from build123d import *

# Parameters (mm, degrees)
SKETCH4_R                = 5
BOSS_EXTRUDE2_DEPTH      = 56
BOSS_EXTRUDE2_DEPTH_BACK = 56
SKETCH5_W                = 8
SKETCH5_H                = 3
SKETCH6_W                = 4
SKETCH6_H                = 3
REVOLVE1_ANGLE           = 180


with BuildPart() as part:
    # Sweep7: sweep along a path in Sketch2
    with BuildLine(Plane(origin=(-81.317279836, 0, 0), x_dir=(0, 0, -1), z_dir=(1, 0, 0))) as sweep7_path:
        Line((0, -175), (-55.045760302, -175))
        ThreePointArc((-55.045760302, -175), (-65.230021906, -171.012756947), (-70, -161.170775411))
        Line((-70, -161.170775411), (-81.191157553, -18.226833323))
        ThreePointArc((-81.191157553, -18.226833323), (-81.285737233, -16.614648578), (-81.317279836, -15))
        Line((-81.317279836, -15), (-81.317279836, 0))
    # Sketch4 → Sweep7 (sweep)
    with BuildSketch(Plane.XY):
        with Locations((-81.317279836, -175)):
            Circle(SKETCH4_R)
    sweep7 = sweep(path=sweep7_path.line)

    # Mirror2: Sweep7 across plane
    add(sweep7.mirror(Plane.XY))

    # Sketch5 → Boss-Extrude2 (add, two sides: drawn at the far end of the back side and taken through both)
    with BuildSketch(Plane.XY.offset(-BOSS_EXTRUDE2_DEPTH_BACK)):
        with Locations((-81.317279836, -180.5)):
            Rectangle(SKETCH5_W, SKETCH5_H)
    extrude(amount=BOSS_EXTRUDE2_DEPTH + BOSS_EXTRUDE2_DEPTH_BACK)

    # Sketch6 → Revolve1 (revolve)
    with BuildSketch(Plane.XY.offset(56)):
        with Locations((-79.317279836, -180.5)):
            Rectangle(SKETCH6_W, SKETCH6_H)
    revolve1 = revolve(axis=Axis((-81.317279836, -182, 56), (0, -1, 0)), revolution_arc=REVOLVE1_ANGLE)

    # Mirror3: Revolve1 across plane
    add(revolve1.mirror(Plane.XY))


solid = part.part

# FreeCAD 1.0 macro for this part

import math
import FreeCAD as App
import Part
import Sketcher

V = App.Vector

doc = App.newDocument("Part")
params = doc.addObject("Spreadsheet::Sheet", "Params")
for row, (alias, value) in enumerate([
    ("sketch1_diameter", "10 mm"),
    ("sketch2_radius", "15 mm"),
    ("sketch2_width", "15 mm"),
    ("sketch3_width", "8 mm"),
    ("sketch3_height", "3 mm"),
    ("pad1_length", "56 mm"),
    ("pad1_length2", "56 mm"),
    ("sketch4_width", "4 mm"),
    ("sketch4_height", "3 mm"),
    ("revolution_angle", "180 deg"),
], start=1):
    params.set(f"A{row}", alias)
    params.set(f"B{row}", "=" + value)
    params.setAlias(f"B{row}", alias)

body = doc.addObject("PartDesign::Body", "Body")

sketch1 = doc.addObject("Sketcher::SketchObject", "Sketch")
body.addObject(sketch1)
sketch1.AttachmentSupport = (doc.XY_Plane, [""])
sketch1.MapMode = "FlatFace"
sketch1.addGeometry(Part.Circle(V(-81, -175, 0), V(0, 0, 1), 5), False)
sketch1.addConstraint(Sketcher.Constraint("Diameter", 0, 10.0))
sketch1.addConstraint(Sketcher.Constraint("DistanceY", 0, 3, -1, 1, 175.0))
sketch1.addConstraint(Sketcher.Constraint("DistanceX", 0, 3, -1, 1, 81.31728))
sketch1.setExpression("Constraints[0]", "Params.sketch1_diameter")

sketch2 = doc.addObject("Sketcher::SketchObject", "Sketch001")
body.addObject(sketch2)
sketch2.AttachmentSupport = (doc.YZ_Plane, [""])
sketch2.MapMode = "FlatFace"
sketch2.AttachmentOffset = App.Placement(V(0, 0, -81.31728), App.Rotation())
sketch2.addGeometry(Part.LineSegment(V(-175, 0, 0), V(-175, 55.04576, 0)), False)
sketch2.addGeometry(Part.ArcOfCircle(Part.Circle(V(-160, 55.04576, 0), V(0, 0, 1), 15), math.radians(94.476586), math.radians(180)), False)
sketch2.addGeometry(Part.LineSegment(V(-161.170775, 70, 0), V(-18.226833, 81.191158, 0)), False)
sketch2.addGeometry(Part.ArcOfCircle(Part.Circle(V(-15, 39.975022, 0), V(0, 0, 1), 41.342258), math.radians(90), math.radians(94.476586)), False)
sketch2.addGeometry(Part.LineSegment(V(-15, 81.31728, 0), V(0, 81.31728, 0)), False)
sketch2.addConstraint(Sketcher.Constraint("Coincident", 0, 2, 1, 2))
sketch2.addConstraint(Sketcher.Constraint("Coincident", 1, 1, 2, 1))
sketch2.addConstraint(Sketcher.Constraint("Coincident", 2, 2, 3, 2))
sketch2.addConstraint(Sketcher.Constraint("Coincident", 3, 1, 4, 1))
sketch2.addConstraint(Sketcher.Constraint("Vertical", 0))
sketch2.addConstraint(Sketcher.Constraint("Horizontal", 4))
sketch2.addConstraint(Sketcher.Constraint("PointOnObject", 0, 1, -1))
sketch2.addConstraint(Sketcher.Constraint("PointOnObject", 4, 2, -2))
sketch2.addConstraint(Sketcher.Constraint("Radius", 1, 15.0))
sketch2.addConstraint(Sketcher.Constraint("DistanceX", 4, 1, 4, 2, 15.0))
sketch2.addConstraint(Sketcher.Constraint("DistanceX", 1, 3, -1, 1, 160.0))
sketch2.addConstraint(Sketcher.Constraint("DistanceX", 3, 3, -1, 1, 15.0))
sketch2.addConstraint(Sketcher.Constraint("DistanceY", -1, 1, 1, 1, 70.0))
sketch2.addConstraint(Sketcher.Constraint("Radius", 3, 41.342258))
sketch2.addConstraint(Sketcher.Constraint("DistanceY", 0, 1, 0, 2, 55.04576))
sketch2.addConstraint(Sketcher.Constraint("DistanceY", -1, 1, 1, 3, 55.04576))
sketch2.addConstraint(Sketcher.Constraint("DistanceY", -1, 1, 3, 3, 39.975022))
sketch2.addConstraint(Sketcher.Constraint("Distance", 2, 143.381354))
sketch2.setExpression("Constraints[8]", "Params.sketch2_radius")
sketch2.setExpression("Constraints[9]", "Params.sketch2_width")
doc.recompute()

additivepipe = doc.addObject("PartDesign::AdditivePipe", "AdditivePipe")
body.addObject(additivepipe)
additivepipe.Profile = sketch1
additivepipe.Spine = (sketch2, ["Edge1", "Edge2", "Edge3", "Edge4", "Edge5"])
doc.recompute()

mirrored = doc.addObject("PartDesign::Mirrored", "Mirrored")
body.addObject(mirrored)
mirrored.Originals = [additivepipe]
mirrored.MirrorPlane = (doc.XY_Plane, [""])
body.Tip = mirrored

sketch3 = doc.addObject("Sketcher::SketchObject", "Sketch002")
body.addObject(sketch3)
sketch3.AttachmentSupport = (doc.XY_Plane, [""])
sketch3.MapMode = "FlatFace"
sketch3.addGeometry(Part.LineSegment(V(-85.3, -179, 0), V(-85.3, -182, 0)), False)
sketch3.addGeometry(Part.LineSegment(V(-85.3, -182, 0), V(-77.3, -182, 0)), False)
sketch3.addGeometry(Part.LineSegment(V(-77.3, -182, 0), V(-77.3, -179, 0)), False)
sketch3.addGeometry(Part.LineSegment(V(-77.3, -179, 0), V(-85.3, -179, 0)), False)
sketch3.addConstraint(Sketcher.Constraint("Coincident", 0, 2, 1, 1))
sketch3.addConstraint(Sketcher.Constraint("Coincident", 1, 2, 2, 1))
sketch3.addConstraint(Sketcher.Constraint("Coincident", 2, 2, 3, 1))
sketch3.addConstraint(Sketcher.Constraint("Coincident", 3, 2, 0, 1))
sketch3.addConstraint(Sketcher.Constraint("Vertical", 0))
sketch3.addConstraint(Sketcher.Constraint("Horizontal", 1))
sketch3.addConstraint(Sketcher.Constraint("Vertical", 2))
sketch3.addConstraint(Sketcher.Constraint("Horizontal", 3))
sketch3.addConstraint(Sketcher.Constraint("DistanceX", 1, 1, 1, 2, 8.0))
sketch3.addConstraint(Sketcher.Constraint("DistanceY", 0, 2, 0, 1, 3.0))
sketch3.addConstraint(Sketcher.Constraint("DistanceY", 0, 2, -1, 1, 182.0))
sketch3.addConstraint(Sketcher.Constraint("DistanceX", 0, 2, -1, 1, 85.31728))
sketch3.setExpression("Constraints[8]", "Params.sketch3_width")
sketch3.setExpression("Constraints[9]", "Params.sketch3_height")
pad1 = doc.addObject("PartDesign::Pad", "Pad")
body.addObject(pad1)
pad1.Profile = sketch3
pad1.Type = "TwoLengths"
pad1.setExpression("Length", "Params.pad1_length")
pad1.setExpression("Length2", "Params.pad1_length2")

sketch4 = doc.addObject("Sketcher::SketchObject", "Sketch003")
body.addObject(sketch4)
sketch4.AttachmentSupport = (doc.XY_Plane, [""])
sketch4.MapMode = "FlatFace"
sketch4.AttachmentOffset = App.Placement(V(0, 0, 56), App.Rotation())
sketch4.addGeometry(Part.LineSegment(V(-81.3, -179, 0), V(-81.3, -182, 0)), False)
sketch4.addGeometry(Part.LineSegment(V(-81.3, -182, 0), V(-77.3, -182, 0)), False)
sketch4.addGeometry(Part.LineSegment(V(-77.3, -182, 0), V(-77.3, -179, 0)), False)
sketch4.addGeometry(Part.LineSegment(V(-77.3, -179, 0), V(-81.3, -179, 0)), False)
sketch4.addGeometry(Part.LineSegment(V(-81.3, -179, 0), V(-81.3, -182, 0)), True)
sketch4.addConstraint(Sketcher.Constraint("Coincident", 0, 2, 1, 1))
sketch4.addConstraint(Sketcher.Constraint("Coincident", 1, 2, 2, 1))
sketch4.addConstraint(Sketcher.Constraint("Coincident", 2, 2, 3, 1))
sketch4.addConstraint(Sketcher.Constraint("Coincident", 3, 2, 0, 1))
sketch4.addConstraint(Sketcher.Constraint("Vertical", 0))
sketch4.addConstraint(Sketcher.Constraint("Horizontal", 1))
sketch4.addConstraint(Sketcher.Constraint("Vertical", 2))
sketch4.addConstraint(Sketcher.Constraint("Horizontal", 3))
sketch4.addConstraint(Sketcher.Constraint("Vertical", 4))
sketch4.addConstraint(Sketcher.Constraint("Coincident", 4, 1, 3, 2))
sketch4.addConstraint(Sketcher.Constraint("Horizontal", 1, 2, 4, 2))
sketch4.addConstraint(Sketcher.Constraint("DistanceX", 1, 1, 1, 2, 4.0))
sketch4.addConstraint(Sketcher.Constraint("DistanceY", 0, 2, 0, 1, 3.0))
sketch4.addConstraint(Sketcher.Constraint("DistanceY", 0, 2, -1, 1, 182.0))
sketch4.addConstraint(Sketcher.Constraint("DistanceX", 0, 2, -1, 1, 81.31728))
sketch4.setExpression("Constraints[11]", "Params.sketch4_width")
sketch4.setExpression("Constraints[12]", "Params.sketch4_height")
revolution = doc.addObject("PartDesign::Revolution", "Revolution")
body.addObject(revolution)
revolution.Profile = sketch4
revolution.ReferenceAxis = (sketch4, ["Axis0"])
revolution.setExpression("Angle", "Params.revolution_angle")
doc.recompute()

mirrored2 = doc.addObject("PartDesign::Mirrored", "Mirrored001")
body.addObject(mirrored2)
mirrored2.Originals = [revolution]
mirrored2.MirrorPlane = (doc.XY_Plane, [""])
body.Tip = mirrored2

doc.recompute()
